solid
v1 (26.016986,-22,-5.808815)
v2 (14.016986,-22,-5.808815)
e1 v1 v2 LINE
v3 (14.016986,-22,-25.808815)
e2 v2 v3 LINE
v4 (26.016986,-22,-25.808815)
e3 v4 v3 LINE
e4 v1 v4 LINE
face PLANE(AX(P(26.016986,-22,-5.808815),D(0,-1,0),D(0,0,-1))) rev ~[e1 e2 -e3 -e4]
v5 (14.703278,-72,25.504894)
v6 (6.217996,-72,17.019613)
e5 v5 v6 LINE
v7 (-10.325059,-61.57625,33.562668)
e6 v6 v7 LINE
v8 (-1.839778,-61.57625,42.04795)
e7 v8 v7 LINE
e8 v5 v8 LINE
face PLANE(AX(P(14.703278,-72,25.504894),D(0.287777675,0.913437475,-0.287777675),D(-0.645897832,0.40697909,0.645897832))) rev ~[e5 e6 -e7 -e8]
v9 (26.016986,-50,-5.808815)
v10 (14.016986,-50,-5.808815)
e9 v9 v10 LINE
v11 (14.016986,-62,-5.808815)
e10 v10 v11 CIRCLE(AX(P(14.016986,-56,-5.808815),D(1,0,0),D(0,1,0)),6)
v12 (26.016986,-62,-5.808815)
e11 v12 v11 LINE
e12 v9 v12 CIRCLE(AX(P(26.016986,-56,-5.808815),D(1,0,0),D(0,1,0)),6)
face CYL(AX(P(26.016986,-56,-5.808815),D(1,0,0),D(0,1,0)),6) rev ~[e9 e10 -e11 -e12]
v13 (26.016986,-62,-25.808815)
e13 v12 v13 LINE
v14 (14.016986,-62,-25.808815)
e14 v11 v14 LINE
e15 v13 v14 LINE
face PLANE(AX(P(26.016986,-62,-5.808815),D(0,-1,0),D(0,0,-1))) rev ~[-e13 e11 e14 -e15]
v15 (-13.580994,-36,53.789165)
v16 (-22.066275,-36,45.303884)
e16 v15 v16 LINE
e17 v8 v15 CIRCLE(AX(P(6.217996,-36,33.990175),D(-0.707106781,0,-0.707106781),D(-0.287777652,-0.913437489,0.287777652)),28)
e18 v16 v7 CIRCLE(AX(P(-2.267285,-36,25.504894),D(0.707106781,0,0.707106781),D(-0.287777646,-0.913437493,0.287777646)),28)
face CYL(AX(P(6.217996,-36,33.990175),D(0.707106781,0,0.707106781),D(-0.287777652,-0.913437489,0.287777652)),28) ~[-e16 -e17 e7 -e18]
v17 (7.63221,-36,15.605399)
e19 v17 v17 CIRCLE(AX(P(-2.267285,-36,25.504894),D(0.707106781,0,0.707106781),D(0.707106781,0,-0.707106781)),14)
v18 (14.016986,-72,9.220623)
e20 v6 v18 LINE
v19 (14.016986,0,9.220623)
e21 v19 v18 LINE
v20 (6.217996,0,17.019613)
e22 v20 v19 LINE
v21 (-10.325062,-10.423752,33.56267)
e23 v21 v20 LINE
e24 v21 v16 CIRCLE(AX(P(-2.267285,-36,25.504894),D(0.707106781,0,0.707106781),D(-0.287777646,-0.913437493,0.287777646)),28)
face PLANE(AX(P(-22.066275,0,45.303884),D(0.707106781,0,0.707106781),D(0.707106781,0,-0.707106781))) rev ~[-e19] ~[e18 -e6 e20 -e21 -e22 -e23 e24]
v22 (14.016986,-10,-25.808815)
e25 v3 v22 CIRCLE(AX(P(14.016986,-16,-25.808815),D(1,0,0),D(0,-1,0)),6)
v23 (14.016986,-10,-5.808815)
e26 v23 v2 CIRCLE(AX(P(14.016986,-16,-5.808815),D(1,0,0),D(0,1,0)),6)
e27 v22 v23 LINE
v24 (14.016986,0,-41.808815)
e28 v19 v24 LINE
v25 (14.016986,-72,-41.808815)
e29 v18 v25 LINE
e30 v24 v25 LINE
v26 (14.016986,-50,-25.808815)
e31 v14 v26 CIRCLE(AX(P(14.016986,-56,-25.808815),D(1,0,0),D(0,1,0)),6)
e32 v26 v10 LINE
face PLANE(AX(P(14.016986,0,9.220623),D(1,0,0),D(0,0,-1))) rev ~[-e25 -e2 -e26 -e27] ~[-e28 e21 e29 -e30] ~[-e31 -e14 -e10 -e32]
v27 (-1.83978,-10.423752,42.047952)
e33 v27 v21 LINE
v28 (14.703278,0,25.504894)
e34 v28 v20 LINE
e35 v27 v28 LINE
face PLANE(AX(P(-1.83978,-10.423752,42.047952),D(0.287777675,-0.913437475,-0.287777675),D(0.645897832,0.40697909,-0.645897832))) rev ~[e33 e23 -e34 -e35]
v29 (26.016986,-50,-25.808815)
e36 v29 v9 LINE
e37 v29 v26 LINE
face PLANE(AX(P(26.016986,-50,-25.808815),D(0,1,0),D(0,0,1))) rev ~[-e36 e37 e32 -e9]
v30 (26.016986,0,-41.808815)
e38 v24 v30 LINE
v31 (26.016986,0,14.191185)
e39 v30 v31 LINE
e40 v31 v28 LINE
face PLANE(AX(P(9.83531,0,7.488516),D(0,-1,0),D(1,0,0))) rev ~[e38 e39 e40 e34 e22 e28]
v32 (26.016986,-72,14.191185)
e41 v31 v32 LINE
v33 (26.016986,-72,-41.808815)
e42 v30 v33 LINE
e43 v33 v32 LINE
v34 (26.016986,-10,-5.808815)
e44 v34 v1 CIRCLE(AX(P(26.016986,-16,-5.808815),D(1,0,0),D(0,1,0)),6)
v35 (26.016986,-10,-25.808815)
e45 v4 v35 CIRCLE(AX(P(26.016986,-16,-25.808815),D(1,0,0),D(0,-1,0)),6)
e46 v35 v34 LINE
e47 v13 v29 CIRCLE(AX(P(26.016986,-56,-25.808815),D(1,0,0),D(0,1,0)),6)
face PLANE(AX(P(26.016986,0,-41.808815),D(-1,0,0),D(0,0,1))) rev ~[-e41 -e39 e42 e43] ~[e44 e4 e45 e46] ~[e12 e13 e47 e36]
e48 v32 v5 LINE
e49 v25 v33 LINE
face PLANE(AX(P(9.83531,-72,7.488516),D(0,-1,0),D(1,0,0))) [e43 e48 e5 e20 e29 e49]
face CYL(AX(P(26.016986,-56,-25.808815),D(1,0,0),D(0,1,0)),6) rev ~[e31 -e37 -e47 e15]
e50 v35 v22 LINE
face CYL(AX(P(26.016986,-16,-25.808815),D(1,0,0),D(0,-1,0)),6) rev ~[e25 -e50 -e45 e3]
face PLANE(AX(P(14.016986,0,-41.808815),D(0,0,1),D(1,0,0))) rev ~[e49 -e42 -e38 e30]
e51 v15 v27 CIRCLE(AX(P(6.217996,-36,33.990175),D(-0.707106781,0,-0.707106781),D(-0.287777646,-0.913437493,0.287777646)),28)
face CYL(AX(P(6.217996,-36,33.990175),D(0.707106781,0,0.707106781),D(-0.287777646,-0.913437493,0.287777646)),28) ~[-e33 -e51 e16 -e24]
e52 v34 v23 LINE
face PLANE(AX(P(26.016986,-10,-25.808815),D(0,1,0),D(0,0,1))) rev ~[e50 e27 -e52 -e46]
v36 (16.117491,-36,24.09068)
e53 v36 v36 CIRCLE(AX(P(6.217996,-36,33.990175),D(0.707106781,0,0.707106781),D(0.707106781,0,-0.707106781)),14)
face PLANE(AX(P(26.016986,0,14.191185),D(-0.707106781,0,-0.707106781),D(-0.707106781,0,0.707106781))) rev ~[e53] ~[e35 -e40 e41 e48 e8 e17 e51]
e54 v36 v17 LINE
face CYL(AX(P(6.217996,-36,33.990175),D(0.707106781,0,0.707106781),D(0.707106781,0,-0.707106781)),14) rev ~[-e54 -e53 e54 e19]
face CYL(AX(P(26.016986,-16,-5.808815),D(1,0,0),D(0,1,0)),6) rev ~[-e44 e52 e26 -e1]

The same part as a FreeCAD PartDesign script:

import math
import FreeCAD as App
import Part
import Sketcher

V = App.Vector
Q = App.Units.Quantity


def add_polygon(sketch, points):
    """Adds a closed chain of lines whose ends are joined by coincident constraints."""
    first, n = sketch.GeometryCount, len(points)
    for a, b in zip(points, points[1:] + points[:1]):
        sketch.addGeometry(Part.LineSegment(App.Vector(*a, 0), App.Vector(*b, 0)), False)
    for i in range(n):
        sketch.addConstraint(Sketcher.Constraint("Coincident", first + i, 2, first + (i + 1) % n, 1))

doc = App.newDocument("Part")
params = doc.addObject("Spreadsheet::Sheet", "Params")
for row, (alias, value) in enumerate([
    ("sketch1_width", "12 mm"),
    ("sketch1_height", "56 mm"),
    ("sketch1_length", "56 mm"),
    ("sketch1_length2", "12 mm"),
    ("pad1_length", "72 mm"),
    ("sketch2_diameter", "28 mm"),
    ("pocket1_length", "25 mm"),
    ("sketch3_radius", "28 mm"),
    ("sketch3_width", "40 mm"),
    ("pocket2_length", "25 mm"),
    ("sketch4_radius", "6 mm"),
    ("sketch4_height", "20 mm"),
    ("pocket3_length", "25 mm"),
], start=1):
    params.set(f"A{row}", alias)
    params.set(f"B{row}", "=" + value)
    params.setAlias(f"B{row}", alias)

body = doc.addObject("PartDesign::Body", "Body")

# Sketch on XZ plane
sketch1 = doc.addObject("Sketcher::SketchObject", "Sketch")
body.addObject(sketch1)
sketch1.AttachmentSupport = (doc.XZ_Plane, [""])
sketch1.MapMode = "FlatFace"
add_polygon(sketch1, [(26, -42), (26, 14), (-14, 54), (-22, 45), (14, 9), (14, -42)])  # lines 0-5
sketch1.addConstraint(Sketcher.Constraint("Vertical", 0))
sketch1.addConstraint(Sketcher.Constraint("Vertical", 4))
sketch1.addConstraint(Sketcher.Constraint("Horizontal", 5))
sketch1.addConstraint(Sketcher.Constraint("Perpendicular", 1, 2))
sketch1.addConstraint(Sketcher.Constraint("Perpendicular", 2, 3))
sketch1.addConstraint(Sketcher.Constraint("DistanceX", 5, 1, 5, 2, 12.0))
sketch1.addConstraint(Sketcher.Constraint("DistanceY", 0, 1, 0, 2, 56.0))
sketch1.addConstraint(Sketcher.Constraint("Angle", 1, Q("135 deg")))
sketch1.addConstraint(Sketcher.Constraint("Distance", 1, 56.0))
sketch1.addConstraint(Sketcher.Constraint("Distance", 2, 12.0))
sketch1.addConstraint(Sketcher.Constraint("DistanceX", -1, 1, 0, 2, 26.016986))
sketch1.addConstraint(Sketcher.Constraint("DistanceY", -1, 1, 0, 2, 14.191185))
sketch1.setExpression("Constraints[11]", "Params.sketch1_width")
sketch1.setExpression("Constraints[12]", "Params.sketch1_height")
sketch1.setExpression("Constraints[14]", "Params.sketch1_length")
sketch1.setExpression("Constraints[15]", "Params.sketch1_length2")
pad1 = doc.addObject("PartDesign::Pad", "Pad")
body.addObject(pad1)
pad1.Profile = sketch1
pad1.setExpression("Length", "Params.pad1_length")

# Sketch on an angled plane
sketch2 = doc.addObject("Sketcher::SketchObject", "Sketch001")
body.addObject(sketch2)
sketch2.Placement = App.Placement(V(20.104086, 0, 20.104086), App.Rotation(V(0.707106781, 0, -0.707106781), V(0, 0.999999999, 0), V(0.707106781, 0, 0.707106781), "ZXY"))
sketch2.addGeometry(Part.Circle(V(-20, -36, 0), V(0, 0, 1), 14), False)
sketch2.addConstraint(Sketcher.Constraint("Diameter", 0, 28.0))
sketch2.addConstraint(Sketcher.Constraint("DistanceY", 0, 3, -1, 1, 36.0))
sketch2.addConstraint(Sketcher.Constraint("DistanceX", 0, 3, -1, 1, 19.637896))
sketch2.setExpression("Constraints[0]", "Params.sketch2_diameter")
pocket1 = doc.addObject("PartDesign::Pocket", "Pocket")
body.addObject(pocket1)
pocket1.Profile = sketch2
pocket1.setExpression("Length", "Params.pocket1_length")

# Sketch on an angled plane
sketch3 = doc.addObject("Sketcher::SketchObject", "Sketch002")
body.addObject(sketch3)
sketch3.Placement = App.Placement(V(20.104086, 0, 20.104086), App.Rotation(V(0.707106781, 0, -0.707106781), V(0, 0.999999999, 0), V(0.707106781, 0, 0.707106781), "ZXY"))
sketch3.addGeometry(Part.LineSegment(V(-31, -10, 0), V(-8, 0, 0)), False)
sketch3.addGeometry(Part.LineSegment(V(-8, 0, 0), V(-48, 0, 0)), False)
sketch3.addGeometry(Part.LineSegment(V(-48, 0, 0), V(-48, -18, 0)), False)
sketch3.addGeometry(Part.LineSegment(V(-48, -18, 0), V(-88, -36, 0)), False)
sketch3.addGeometry(Part.LineSegment(V(-88, -36, 0), V(-48, -54, 0)), False)
sketch3.addGeometry(Part.LineSegment(V(-48, -54, 0), V(-48, -72, 0)), False)
sketch3.addGeometry(Part.LineSegment(V(-48, -72, 0), V(-8, -72, 0)), False)
sketch3.addGeometry(Part.LineSegment(V(-8, -72, 0), V(-31, -62, 0)), False)
sketch3.addGeometry(Part.ArcOfCircle(Part.Circle(V(-20, -36, 0), V(0, 0, 1), 28), math.radians(180), math.radians(246)), False)
sketch3.addGeometry(Part.ArcOfCircle(Part.Circle(V(-20, -36, 0), V(0, 0, 1), 28), math.radians(114), math.radians(180)), False)
sketch3.addConstraint(Sketcher.Constraint("Coincident", 0, 2, 1, 1))
sketch3.addConstraint(Sketcher.Constraint("Coincident", 1, 2, 2, 1))
sketch3.addConstraint(Sketcher.Constraint("Coincident", 2, 2, 3, 1))
sketch3.addConstraint(Sketcher.Constraint("Coincident", 3, 2, 4, 1))
sketch3.addConstraint(Sketcher.Constraint("Coincident", 4, 2, 5, 1))
sketch3.addConstraint(Sketcher.Constraint("Coincident", 5, 2, 6, 1))
sketch3.addConstraint(Sketcher.Constraint("Coincident", 6, 2, 7, 1))
sketch3.addConstraint(Sketcher.Constraint("Tangent", 7, 2, 8, 2))
sketch3.addConstraint(Sketcher.Constraint("Tangent", 8, 1, 9, 2))
sketch3.addConstraint(Sketcher.Constraint("Tangent", 9, 1, 0, 1))
sketch3.addConstraint(Sketcher.Constraint("Horizontal", 1))
sketch3.addConstraint(Sketcher.Constraint("Vertical", 2))
sketch3.addConstraint(Sketcher.Constraint("Vertical", 5))
sketch3.addConstraint(Sketcher.Constraint("Horizontal", 6))
sketch3.addConstraint(Sketcher.Constraint("Equal", 8, 9))
sketch3.addConstraint(Sketcher.Constraint("PointOnObject", 0, 2, -1))
sketch3.addConstraint(Sketcher.Constraint("Parallel", 0, 3))
sketch3.addConstraint(Sketcher.Constraint("Parallel", 4, 7))
sketch3.addConstraint(Sketcher.Constraint("Horizontal", 9, 3, 3, 2))
sketch3.addConstraint(Sketcher.Constraint("Horizontal", 3, 2, 8, 1))
sketch3.addConstraint(Sketcher.Constraint("Vertical", 2, 2, 4, 2))
sketch3.addConstraint(Sketcher.Constraint("Vertical", 0, 2, 6, 2))
sketch3.addConstraint(Sketcher.Constraint("Vertical", 5, 2, 8, 1))
sketch3.addConstraint(Sketcher.Constraint("Equal", 2, 5))
sketch3.addConstraint(Sketcher.Constraint("Radius", 8, 28.0))
sketch3.addConstraint(Sketcher.Constraint("DistanceX", 1, 2, 1, 1, 40.0))
sketch3.addConstraint(Sketcher.Constraint("DistanceY", 8, 3, -1, 1, 36.0))
sketch3.addConstraint(Sketcher.Constraint("DistanceY", 2, 2, 2, 1, 17.82187))
sketch3.addConstraint(Sketcher.Constraint("DistanceX", 3, 2, -1, 1, 88.4375))
sketch3.setExpression("Constraints[24]", "Params.sketch3_radius")
sketch3.setExpression("Constraints[25]", "Params.sketch3_width")
pocket2 = doc.addObject("PartDesign::Pocket", "Pocket001")
body.addObject(pocket2)
pocket2.Profile = sketch3
pocket2.setExpression("Length", "Params.pocket2_length")

# Sketch on YZ plane
sketch4 = doc.addObject("Sketcher::SketchObject", "Sketch003")
body.addObject(sketch4)
sketch4.AttachmentSupport = (doc.YZ_Plane, [""])
sketch4.MapMode = "FlatFace"
sketch4.AttachmentOffset = App.Placement(V(0, 0, 26.016986), App.Rotation())
sketch4.addGeometry(Part.ArcOfCircle(Part.Circle(V(-56, -26, 0), V(0, 0, 1), 6), math.radians(180), math.radians(360)), False)
sketch4.addGeometry(Part.LineSegment(V(-50, -26, 0), V(-50, -6, 0)), False)
sketch4.addGeometry(Part.ArcOfCircle(Part.Circle(V(-56, -6, 0), V(0, 0, 1), 6), math.radians(0), math.radians(180)), False)
sketch4.addGeometry(Part.LineSegment(V(-62, -6, 0), V(-62, -26, 0)), False)
sketch4.addGeometry(Part.ArcOfCircle(Part.Circle(V(-16, -26, 0), V(0, 0, 1), 6), math.radians(180), math.radians(360)), False)
sketch4.addGeometry(Part.LineSegment(V(-10, -26, 0), V(-10, -6, 0)), False)
sketch4.addGeometry(Part.ArcOfCircle(Part.Circle(V(-16, -6, 0), V(0, 0, 1), 6), math.radians(0), math.radians(180)), False)
sketch4.addGeometry(Part.LineSegment(V(-22, -6, 0), V(-22, -26, 0)), False)
sketch4.addConstraint(Sketcher.Constraint("Tangent", 0, 2, 1, 1))
sketch4.addConstraint(Sketcher.Constraint("Tangent", 1, 2, 2, 1))
sketch4.addConstraint(Sketcher.Constraint("Tangent", 2, 2, 3, 1))
sketch4.addConstraint(Sketcher.Constraint("Tangent", 3, 2, 0, 1))
sketch4.addConstraint(Sketcher.Constraint("Tangent", 4, 2, 5, 1))
sketch4.addConstraint(Sketcher.Constraint("Tangent", 5, 2, 6, 1))
sketch4.addConstraint(Sketcher.Constraint("Tangent", 6, 2, 7, 1))
sketch4.addConstraint(Sketcher.Constraint("Tangent", 7, 2, 4, 1))
sketch4.addConstraint(Sketcher.Constraint("Vertical", 1))
sketch4.addConstraint(Sketcher.Constraint("Vertical", 3))
sketch4.addConstraint(Sketcher.Constraint("Vertical", 5))
sketch4.addConstraint(Sketcher.Constraint("Vertical", 7))
sketch4.addConstraint(Sketcher.Constraint("Equal", 2, 4))
sketch4.addConstraint(Sketcher.Constraint("Horizontal", 0, 3, 4, 3))
sketch4.addConstraint(Sketcher.Constraint("Horizontal", 2, 3, 6, 3))
sketch4.addConstraint(Sketcher.Constraint("Radius", 0, 6.0))
sketch4.addConstraint(Sketcher.Constraint("DistanceY", 1, 1, 1, 2, 20.0))
sketch4.addConstraint(Sketcher.Constraint("DistanceX", 0, 3, -1, 1, 56.0))
sketch4.addConstraint(Sketcher.Constraint("DistanceX", 4, 3, -1, 1, 16.0))
sketch4.addConstraint(Sketcher.Constraint("DistanceY", 0, 3, -1, 1, 25.808815))
sketch4.setExpression("Constraints[15]", "Params.sketch4_radius")
sketch4.setExpression("Constraints[16]", "Params.sketch4_height")
pocket3 = doc.addObject("PartDesign::Pocket", "Pocket002")
body.addObject(pocket3)
pocket3.Profile = sketch4
pocket3.setExpression("Length", "Params.pocket3_length")

doc.recompute()
